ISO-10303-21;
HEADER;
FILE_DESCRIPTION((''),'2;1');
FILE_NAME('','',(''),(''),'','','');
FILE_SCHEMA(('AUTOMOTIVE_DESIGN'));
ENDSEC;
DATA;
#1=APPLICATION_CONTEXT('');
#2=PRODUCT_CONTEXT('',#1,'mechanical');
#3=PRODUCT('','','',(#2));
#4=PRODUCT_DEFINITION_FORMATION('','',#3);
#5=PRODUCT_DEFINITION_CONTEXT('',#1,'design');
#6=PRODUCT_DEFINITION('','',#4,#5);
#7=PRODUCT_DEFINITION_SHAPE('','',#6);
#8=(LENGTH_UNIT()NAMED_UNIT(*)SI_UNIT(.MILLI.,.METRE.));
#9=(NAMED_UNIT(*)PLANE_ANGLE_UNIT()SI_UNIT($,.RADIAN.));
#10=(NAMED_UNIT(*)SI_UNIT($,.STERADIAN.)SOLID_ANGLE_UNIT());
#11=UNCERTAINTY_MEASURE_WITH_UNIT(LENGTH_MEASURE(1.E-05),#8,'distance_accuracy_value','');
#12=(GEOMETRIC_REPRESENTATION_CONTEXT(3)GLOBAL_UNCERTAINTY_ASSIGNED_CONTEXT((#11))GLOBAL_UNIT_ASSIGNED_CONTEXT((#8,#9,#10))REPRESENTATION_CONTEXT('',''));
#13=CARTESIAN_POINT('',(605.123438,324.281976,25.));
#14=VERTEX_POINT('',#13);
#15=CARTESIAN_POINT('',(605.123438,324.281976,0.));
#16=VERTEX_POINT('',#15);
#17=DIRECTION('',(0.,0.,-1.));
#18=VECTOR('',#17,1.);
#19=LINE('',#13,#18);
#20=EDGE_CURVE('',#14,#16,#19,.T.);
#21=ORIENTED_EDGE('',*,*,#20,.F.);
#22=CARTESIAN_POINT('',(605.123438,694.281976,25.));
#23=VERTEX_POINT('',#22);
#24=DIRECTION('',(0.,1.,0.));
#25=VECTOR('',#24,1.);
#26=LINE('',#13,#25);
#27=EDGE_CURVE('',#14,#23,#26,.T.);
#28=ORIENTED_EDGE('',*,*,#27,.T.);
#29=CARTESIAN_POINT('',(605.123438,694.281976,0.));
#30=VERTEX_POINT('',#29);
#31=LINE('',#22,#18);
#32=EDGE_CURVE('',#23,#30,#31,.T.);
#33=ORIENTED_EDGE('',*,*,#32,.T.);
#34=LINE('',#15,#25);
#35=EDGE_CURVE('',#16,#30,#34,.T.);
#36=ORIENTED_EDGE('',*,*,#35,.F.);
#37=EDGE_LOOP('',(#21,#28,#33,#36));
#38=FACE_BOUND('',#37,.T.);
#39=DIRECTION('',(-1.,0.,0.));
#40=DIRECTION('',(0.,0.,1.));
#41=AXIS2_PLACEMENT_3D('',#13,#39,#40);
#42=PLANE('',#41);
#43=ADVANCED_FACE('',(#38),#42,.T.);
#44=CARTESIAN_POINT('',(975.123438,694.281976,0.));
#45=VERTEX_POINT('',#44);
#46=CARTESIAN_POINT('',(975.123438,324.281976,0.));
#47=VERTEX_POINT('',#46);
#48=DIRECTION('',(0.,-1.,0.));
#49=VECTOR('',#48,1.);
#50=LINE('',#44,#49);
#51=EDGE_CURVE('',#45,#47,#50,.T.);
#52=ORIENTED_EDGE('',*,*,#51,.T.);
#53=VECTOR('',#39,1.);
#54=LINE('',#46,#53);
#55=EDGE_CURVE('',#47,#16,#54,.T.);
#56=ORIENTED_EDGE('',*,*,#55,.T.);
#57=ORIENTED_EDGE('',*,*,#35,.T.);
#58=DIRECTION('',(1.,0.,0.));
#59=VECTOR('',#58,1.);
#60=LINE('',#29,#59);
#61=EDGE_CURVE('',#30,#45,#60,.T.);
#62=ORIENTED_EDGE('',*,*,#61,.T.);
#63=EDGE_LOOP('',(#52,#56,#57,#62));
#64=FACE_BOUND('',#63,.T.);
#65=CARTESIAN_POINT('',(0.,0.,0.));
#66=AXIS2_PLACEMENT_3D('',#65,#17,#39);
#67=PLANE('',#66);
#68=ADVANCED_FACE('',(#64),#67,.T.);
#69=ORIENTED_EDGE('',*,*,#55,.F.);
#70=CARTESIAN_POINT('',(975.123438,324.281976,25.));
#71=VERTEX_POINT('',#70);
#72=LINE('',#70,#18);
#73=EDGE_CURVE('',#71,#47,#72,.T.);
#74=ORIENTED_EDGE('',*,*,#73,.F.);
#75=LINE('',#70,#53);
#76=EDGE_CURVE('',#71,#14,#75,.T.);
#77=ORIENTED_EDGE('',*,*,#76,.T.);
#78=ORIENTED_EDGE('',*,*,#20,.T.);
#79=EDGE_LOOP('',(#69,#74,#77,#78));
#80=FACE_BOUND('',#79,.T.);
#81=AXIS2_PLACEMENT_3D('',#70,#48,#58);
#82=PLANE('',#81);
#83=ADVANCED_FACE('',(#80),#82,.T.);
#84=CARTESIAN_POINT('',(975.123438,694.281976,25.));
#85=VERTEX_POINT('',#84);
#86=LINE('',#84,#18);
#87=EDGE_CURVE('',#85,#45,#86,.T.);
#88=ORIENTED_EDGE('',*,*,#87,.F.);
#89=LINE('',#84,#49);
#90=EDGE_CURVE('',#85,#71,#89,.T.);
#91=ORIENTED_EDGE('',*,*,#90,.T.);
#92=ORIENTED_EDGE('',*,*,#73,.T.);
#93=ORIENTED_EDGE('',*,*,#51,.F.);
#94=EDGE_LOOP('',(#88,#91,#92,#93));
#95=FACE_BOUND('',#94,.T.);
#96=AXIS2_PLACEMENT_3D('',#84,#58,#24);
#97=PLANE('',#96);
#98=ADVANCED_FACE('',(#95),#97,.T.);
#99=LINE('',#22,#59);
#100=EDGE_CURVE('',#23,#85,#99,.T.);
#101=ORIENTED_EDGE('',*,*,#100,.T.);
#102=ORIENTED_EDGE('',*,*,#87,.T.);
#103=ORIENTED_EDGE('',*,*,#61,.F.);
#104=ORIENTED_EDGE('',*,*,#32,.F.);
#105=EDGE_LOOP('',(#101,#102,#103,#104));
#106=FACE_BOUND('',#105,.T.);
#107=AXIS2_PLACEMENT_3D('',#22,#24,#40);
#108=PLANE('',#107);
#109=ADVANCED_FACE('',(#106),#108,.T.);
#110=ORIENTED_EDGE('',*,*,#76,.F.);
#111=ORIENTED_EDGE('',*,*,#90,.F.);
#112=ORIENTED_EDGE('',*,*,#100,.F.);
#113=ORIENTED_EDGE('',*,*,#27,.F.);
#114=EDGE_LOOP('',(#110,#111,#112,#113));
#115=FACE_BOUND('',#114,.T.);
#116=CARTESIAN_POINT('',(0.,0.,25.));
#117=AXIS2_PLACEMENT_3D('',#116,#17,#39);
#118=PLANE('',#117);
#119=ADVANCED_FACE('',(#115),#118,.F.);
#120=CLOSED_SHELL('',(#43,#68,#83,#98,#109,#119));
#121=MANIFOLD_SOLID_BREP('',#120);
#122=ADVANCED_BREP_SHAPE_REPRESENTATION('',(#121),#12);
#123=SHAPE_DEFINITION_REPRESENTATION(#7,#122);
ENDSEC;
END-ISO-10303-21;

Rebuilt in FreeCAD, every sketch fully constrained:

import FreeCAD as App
import Part
import Sketcher

doc = App.newDocument("Part")
params = doc.addObject("Spreadsheet::Sheet", "Params")
for row, (alias, value) in enumerate([
    ("sketch1_width", "370 mm"),
    ("pad1_length", "25 mm"),
], start=1):
    params.set(f"A{row}", alias)
    params.set(f"B{row}", "=" + value)
    params.setAlias(f"B{row}", alias)

body = doc.addObject("PartDesign::Body", "Body")

# Sketch on XY plane
sketch1 = body.newObject("Sketcher::SketchObject", "Sketch")
sketch1.AttachmentSupport = (doc.getObject("XY_Plane"), [""])
sketch1.MapMode = "FlatFace"
sketch1.addGeometry([
    Part.LineSegment(App.Vector(605, 694, 0), App.Vector(605, 324, 0)),
    Part.LineSegment(App.Vector(605, 324, 0), App.Vector(975, 324, 0)),
    Part.LineSegment(App.Vector(975, 324, 0), App.Vector(975, 694, 0)),
    Part.LineSegment(App.Vector(975, 694, 0), App.Vector(605, 694, 0)),
], False)
sketch1.addConstraint([
    Sketcher.Constraint("Coincident", 0, 2, 1, 1),
    Sketcher.Constraint("Coincident", 1, 2, 2, 1),
    Sketcher.Constraint("Coincident", 2, 2, 3, 1),
    Sketcher.Constraint("Coincident", 3, 2, 0, 1),
    Sketcher.Constraint("Vertical", 0),
    Sketcher.Constraint("Horizontal", 1),
    Sketcher.Constraint("Vertical", 2),
    Sketcher.Constraint("Horizontal", 3),
    Sketcher.Constraint("Equal", 3, 0),
    Sketcher.Constraint("DistanceX", 1, 1, 1, 2, 370.0),
    Sketcher.Constraint("DistanceX", -1, 1, 0, 2, 605.123438),
    Sketcher.Constraint("DistanceY", -1, 1, 0, 2, 324.281976),
])
sketch1.setExpression("Constraints[9]", "Params.sketch1_width")
pad1 = body.newObject("PartDesign::Pad", "Pad")
pad1.Profile = sketch1
pad1.setExpression("Length", "Params.pad1_length")

doc.recompute()
